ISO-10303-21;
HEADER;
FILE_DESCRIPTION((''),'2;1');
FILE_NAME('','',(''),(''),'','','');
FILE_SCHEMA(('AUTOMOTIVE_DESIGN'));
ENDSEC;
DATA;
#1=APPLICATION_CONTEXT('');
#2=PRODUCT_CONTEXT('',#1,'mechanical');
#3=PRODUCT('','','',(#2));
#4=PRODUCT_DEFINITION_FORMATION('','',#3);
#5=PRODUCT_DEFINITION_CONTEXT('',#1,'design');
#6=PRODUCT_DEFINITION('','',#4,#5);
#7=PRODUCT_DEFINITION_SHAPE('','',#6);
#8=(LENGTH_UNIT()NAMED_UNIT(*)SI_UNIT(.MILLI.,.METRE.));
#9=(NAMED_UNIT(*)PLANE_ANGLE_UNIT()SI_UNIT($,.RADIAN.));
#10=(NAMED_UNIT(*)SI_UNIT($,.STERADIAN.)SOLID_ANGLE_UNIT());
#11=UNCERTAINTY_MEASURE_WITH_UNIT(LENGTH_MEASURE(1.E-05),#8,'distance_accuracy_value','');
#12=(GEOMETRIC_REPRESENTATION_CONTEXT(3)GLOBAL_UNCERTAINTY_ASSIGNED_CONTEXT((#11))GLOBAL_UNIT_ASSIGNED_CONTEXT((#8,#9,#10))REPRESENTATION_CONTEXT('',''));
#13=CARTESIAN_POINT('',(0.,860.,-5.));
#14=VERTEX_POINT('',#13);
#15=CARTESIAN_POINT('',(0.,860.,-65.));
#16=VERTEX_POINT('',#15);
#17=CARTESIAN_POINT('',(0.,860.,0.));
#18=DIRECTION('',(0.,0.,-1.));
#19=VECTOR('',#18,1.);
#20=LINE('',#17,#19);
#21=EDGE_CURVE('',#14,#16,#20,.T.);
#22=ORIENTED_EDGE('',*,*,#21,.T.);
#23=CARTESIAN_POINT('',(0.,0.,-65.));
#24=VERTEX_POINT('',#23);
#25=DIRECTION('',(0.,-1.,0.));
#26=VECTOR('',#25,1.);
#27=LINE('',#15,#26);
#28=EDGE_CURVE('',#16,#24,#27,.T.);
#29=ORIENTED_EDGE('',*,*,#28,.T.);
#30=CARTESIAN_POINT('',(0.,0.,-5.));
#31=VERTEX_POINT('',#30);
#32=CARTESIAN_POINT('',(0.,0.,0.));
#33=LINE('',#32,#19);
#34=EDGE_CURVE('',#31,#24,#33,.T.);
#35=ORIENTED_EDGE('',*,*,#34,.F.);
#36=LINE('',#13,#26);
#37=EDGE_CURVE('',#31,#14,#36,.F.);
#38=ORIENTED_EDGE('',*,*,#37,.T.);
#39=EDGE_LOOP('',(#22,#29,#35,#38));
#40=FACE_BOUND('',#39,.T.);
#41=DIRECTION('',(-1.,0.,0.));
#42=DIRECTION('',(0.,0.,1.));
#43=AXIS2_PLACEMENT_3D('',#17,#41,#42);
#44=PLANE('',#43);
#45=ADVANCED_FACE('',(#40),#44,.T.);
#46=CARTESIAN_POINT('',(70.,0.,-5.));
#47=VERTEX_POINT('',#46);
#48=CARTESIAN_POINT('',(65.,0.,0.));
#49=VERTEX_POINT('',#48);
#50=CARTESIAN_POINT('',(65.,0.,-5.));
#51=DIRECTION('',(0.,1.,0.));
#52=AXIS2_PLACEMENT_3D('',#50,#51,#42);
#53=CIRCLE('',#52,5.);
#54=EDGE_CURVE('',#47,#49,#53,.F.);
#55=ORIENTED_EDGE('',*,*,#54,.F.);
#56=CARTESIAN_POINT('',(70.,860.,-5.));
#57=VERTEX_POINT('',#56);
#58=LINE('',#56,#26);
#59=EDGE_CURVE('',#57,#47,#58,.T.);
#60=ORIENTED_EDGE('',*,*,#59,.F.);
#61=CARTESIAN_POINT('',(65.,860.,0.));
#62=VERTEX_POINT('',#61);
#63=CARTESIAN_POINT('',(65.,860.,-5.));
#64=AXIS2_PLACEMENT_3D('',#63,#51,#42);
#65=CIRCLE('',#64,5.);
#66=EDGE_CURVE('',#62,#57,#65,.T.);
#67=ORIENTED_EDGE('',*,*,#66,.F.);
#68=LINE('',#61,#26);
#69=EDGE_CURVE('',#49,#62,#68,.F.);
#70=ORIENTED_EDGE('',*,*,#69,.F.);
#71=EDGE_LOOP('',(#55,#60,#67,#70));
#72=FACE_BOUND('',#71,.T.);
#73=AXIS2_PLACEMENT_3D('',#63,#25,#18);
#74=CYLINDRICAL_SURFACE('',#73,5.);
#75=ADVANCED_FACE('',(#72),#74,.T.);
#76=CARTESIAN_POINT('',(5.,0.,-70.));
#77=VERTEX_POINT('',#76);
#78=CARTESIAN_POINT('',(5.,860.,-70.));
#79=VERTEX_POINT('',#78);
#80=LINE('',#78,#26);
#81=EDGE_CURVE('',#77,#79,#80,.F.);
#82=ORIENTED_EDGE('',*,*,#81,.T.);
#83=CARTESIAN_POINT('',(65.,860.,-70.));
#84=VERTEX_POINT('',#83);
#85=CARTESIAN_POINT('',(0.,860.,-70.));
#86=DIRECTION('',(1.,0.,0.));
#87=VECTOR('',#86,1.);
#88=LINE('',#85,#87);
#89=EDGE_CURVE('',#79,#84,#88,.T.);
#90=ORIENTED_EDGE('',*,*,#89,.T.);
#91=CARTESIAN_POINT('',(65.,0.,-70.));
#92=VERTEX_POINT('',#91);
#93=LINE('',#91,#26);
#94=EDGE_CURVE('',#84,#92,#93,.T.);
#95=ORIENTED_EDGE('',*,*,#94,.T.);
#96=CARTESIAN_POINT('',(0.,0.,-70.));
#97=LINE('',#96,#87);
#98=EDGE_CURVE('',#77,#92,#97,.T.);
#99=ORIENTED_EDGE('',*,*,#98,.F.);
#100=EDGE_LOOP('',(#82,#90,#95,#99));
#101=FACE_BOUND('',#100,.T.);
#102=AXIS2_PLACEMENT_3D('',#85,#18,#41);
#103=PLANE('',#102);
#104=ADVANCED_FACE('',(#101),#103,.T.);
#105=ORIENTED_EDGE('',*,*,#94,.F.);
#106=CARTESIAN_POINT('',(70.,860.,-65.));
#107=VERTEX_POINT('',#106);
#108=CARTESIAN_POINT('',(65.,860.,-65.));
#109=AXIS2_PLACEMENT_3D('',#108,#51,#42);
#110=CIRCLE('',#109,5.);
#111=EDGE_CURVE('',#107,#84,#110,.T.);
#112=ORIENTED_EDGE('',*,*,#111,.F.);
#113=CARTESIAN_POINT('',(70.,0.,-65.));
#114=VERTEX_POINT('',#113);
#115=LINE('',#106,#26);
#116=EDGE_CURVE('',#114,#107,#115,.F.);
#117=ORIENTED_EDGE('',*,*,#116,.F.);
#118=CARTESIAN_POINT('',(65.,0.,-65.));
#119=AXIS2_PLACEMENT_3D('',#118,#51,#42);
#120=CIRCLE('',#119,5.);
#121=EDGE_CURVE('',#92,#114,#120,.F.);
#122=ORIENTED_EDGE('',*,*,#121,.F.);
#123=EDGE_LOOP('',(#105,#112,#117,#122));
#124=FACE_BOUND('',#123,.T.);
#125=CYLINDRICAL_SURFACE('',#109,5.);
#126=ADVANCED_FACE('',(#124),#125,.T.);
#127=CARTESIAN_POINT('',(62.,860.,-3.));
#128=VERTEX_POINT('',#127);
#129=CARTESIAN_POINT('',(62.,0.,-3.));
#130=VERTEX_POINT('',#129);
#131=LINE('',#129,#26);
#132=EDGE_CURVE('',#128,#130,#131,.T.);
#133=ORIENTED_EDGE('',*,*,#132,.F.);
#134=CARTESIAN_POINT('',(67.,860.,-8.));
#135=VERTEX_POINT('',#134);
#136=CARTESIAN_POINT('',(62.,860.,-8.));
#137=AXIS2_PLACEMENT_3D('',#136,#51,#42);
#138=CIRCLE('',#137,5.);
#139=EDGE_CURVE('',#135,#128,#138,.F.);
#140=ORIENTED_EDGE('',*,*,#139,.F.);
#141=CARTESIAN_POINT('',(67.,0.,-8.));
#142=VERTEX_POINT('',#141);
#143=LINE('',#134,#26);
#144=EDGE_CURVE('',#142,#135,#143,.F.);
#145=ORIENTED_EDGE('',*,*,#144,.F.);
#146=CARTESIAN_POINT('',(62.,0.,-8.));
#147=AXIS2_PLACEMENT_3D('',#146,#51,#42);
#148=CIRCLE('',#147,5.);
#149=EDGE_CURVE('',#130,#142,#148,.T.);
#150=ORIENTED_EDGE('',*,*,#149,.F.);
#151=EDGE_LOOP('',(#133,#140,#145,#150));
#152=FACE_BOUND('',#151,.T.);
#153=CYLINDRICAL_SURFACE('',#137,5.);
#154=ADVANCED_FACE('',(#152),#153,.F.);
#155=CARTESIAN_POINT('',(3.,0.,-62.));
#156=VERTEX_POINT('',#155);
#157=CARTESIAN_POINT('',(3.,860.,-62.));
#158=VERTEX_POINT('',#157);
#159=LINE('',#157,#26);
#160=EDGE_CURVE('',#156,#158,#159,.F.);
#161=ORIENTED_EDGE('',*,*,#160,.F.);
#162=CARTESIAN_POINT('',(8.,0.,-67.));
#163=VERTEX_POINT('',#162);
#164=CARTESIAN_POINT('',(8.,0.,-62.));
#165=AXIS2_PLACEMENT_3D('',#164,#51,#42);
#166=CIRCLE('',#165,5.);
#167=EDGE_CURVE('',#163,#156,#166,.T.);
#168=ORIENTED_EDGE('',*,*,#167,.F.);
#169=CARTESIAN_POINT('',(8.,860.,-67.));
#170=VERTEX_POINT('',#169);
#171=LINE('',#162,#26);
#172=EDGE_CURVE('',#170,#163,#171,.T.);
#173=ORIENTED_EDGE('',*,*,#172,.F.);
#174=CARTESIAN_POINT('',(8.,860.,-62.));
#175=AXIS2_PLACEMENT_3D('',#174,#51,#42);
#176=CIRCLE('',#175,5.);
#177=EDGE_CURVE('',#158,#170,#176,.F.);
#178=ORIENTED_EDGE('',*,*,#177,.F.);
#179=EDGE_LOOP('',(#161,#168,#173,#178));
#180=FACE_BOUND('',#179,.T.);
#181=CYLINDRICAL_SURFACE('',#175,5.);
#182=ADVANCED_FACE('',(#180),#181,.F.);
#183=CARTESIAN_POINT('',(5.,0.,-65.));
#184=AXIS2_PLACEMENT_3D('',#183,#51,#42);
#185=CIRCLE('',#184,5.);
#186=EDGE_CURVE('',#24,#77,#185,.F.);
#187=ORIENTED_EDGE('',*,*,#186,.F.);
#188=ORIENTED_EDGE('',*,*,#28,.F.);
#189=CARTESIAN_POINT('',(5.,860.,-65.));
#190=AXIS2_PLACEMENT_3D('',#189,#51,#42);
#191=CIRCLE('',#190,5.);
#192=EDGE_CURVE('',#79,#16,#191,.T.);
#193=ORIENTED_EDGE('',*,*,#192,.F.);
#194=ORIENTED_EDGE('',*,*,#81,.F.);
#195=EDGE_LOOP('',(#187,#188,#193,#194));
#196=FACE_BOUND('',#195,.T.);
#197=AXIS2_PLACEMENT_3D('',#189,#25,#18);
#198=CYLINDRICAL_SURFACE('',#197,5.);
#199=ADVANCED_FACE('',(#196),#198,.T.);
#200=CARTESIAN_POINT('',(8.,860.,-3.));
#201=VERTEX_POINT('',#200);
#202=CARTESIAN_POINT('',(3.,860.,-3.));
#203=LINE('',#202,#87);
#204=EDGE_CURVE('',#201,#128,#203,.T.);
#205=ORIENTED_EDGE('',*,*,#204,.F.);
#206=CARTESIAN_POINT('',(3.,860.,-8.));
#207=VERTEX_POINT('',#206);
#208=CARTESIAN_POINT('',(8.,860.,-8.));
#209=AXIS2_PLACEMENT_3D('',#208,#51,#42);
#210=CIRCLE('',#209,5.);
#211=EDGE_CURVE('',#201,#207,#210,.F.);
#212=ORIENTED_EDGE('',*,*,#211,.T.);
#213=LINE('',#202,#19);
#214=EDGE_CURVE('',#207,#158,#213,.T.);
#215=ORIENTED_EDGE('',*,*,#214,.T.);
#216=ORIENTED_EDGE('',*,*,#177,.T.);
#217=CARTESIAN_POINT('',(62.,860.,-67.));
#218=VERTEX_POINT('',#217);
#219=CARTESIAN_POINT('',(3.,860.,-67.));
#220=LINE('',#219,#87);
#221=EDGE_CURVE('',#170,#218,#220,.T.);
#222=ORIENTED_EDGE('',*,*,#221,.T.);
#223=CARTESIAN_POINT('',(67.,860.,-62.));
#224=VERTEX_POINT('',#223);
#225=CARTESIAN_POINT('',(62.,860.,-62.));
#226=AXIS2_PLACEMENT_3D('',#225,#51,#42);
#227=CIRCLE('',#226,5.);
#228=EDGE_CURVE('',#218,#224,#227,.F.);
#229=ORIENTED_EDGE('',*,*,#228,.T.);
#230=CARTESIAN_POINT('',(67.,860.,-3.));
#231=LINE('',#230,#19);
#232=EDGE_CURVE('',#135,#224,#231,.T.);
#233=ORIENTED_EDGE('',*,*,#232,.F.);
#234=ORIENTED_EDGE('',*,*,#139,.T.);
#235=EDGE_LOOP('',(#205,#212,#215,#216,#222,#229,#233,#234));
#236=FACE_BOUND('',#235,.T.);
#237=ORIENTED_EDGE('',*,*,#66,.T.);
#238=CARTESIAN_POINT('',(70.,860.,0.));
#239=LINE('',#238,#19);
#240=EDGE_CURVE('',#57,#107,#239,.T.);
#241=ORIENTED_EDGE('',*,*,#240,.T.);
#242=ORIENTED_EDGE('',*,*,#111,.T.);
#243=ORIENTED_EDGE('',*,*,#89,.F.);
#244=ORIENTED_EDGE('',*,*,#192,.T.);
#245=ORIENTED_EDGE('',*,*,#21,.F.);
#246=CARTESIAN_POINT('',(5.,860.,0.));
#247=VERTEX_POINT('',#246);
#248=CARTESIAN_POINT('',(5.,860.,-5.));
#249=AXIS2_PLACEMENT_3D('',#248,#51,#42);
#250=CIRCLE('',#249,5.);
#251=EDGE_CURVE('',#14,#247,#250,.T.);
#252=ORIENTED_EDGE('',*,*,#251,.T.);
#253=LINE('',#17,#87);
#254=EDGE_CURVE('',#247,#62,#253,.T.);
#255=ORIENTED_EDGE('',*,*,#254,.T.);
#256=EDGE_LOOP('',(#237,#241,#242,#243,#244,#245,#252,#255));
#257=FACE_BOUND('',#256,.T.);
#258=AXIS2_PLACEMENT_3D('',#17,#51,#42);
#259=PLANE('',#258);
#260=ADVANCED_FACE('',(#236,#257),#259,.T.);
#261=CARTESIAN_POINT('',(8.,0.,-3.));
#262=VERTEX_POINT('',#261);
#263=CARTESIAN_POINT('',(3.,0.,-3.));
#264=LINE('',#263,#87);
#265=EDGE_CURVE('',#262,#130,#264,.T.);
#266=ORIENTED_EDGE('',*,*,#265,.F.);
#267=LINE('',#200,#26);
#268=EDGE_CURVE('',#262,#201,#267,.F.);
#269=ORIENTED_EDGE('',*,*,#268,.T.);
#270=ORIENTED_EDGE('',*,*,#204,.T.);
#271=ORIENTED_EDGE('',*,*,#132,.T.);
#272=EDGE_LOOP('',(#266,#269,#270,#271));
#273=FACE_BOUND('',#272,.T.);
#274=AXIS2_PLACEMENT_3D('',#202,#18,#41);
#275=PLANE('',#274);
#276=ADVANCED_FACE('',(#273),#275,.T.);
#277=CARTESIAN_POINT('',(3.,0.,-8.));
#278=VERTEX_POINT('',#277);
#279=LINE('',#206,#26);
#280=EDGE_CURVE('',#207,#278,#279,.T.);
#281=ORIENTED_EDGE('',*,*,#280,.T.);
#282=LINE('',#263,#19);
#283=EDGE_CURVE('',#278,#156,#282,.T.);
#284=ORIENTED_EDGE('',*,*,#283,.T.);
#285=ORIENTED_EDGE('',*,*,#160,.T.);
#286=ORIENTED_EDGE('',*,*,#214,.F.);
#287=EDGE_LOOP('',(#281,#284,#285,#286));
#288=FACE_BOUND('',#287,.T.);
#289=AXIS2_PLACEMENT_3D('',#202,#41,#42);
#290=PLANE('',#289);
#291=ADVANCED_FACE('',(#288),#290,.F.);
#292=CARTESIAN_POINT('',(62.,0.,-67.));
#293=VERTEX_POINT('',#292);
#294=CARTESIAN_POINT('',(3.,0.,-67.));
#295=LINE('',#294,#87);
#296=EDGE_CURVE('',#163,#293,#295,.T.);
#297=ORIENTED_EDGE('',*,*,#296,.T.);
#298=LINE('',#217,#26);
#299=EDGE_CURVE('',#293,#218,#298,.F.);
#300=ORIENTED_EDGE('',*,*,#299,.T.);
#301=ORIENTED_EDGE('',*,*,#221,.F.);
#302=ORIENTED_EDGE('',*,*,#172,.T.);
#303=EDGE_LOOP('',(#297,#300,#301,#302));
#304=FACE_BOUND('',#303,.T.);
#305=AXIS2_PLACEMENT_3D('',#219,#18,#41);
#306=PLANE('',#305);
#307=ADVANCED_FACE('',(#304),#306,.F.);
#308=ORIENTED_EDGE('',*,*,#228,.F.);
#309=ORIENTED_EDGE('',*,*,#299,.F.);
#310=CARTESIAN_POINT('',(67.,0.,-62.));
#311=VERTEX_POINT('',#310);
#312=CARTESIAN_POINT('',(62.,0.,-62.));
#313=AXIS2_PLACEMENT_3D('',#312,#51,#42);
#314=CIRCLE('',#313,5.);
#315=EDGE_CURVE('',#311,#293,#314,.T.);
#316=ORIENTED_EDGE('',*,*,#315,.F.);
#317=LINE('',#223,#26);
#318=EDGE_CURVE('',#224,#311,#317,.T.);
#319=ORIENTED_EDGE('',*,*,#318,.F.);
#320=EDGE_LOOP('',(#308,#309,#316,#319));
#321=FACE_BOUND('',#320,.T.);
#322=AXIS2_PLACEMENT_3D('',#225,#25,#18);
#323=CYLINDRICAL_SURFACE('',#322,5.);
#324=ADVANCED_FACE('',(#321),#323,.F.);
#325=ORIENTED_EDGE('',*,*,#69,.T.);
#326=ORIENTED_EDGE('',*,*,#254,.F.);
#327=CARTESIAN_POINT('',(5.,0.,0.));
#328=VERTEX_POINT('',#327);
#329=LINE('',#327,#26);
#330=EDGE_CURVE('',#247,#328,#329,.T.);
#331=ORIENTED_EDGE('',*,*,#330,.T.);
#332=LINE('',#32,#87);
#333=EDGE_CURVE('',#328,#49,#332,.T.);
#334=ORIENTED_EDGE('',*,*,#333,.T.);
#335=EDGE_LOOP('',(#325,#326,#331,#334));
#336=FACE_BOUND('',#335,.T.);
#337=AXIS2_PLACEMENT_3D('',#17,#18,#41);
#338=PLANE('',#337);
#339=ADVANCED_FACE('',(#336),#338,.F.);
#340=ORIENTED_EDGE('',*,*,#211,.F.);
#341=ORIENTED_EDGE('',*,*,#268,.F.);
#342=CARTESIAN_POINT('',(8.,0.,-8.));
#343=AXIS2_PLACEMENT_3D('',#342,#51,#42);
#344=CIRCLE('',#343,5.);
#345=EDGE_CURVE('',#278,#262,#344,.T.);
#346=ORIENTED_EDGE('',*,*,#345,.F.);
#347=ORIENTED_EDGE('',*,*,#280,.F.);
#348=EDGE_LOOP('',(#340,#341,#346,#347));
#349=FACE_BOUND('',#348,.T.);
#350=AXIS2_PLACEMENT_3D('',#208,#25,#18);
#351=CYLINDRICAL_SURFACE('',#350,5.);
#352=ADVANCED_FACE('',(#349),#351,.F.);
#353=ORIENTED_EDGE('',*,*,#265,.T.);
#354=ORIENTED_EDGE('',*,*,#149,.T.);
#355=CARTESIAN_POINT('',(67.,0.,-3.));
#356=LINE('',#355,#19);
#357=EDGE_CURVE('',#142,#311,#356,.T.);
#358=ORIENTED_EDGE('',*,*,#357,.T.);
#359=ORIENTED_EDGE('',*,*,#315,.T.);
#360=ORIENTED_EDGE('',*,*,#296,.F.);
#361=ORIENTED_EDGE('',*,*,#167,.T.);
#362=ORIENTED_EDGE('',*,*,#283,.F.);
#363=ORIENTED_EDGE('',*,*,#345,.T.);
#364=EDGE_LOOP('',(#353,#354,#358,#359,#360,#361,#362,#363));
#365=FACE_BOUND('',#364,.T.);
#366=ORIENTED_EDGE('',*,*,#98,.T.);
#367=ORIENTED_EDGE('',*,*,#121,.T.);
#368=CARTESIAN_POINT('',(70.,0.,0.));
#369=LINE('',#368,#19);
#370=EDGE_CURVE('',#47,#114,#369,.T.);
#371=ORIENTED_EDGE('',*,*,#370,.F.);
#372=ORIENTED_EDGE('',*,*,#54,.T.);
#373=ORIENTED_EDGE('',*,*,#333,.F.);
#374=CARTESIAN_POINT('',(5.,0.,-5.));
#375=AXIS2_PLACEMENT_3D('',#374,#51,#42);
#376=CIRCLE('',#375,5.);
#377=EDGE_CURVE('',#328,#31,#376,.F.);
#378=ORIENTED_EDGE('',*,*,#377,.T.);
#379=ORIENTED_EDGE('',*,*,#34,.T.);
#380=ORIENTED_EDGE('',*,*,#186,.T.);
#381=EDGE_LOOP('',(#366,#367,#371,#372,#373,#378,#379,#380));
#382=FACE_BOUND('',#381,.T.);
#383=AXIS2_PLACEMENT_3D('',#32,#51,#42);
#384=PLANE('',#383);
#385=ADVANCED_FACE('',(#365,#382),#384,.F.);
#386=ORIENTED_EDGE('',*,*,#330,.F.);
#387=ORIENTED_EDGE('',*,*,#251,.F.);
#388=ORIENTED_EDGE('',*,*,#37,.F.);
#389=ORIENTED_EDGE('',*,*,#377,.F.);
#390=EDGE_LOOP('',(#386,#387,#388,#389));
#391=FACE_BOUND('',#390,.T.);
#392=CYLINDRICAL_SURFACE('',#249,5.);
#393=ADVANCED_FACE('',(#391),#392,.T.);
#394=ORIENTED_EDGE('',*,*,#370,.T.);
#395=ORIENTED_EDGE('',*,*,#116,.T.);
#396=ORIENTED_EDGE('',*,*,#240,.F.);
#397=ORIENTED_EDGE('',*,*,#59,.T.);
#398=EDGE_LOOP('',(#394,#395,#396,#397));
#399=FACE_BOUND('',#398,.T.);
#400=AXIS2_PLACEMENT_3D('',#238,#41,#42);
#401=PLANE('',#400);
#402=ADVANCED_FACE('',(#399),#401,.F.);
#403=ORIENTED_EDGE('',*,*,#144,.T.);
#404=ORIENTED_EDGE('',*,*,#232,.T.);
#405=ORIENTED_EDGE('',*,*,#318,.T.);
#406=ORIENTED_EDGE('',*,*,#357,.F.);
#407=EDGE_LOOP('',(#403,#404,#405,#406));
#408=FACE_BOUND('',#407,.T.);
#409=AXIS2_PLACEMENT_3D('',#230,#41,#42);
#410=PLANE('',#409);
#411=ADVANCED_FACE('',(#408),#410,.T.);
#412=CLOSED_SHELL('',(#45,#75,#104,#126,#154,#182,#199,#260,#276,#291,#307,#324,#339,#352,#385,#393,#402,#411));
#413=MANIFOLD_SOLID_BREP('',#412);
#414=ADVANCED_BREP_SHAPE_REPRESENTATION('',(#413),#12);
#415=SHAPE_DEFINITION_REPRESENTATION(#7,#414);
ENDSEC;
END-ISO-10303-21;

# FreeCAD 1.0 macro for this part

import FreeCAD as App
import Part
import Sketcher
from FreeCAD import Vector
Q = App.Units.Quantity


def edges_at(feature, points):
    """Names of the edges that pass closest to the given points."""
    edges = feature.Shape.Edges
    near = lambda p: min(range(len(edges)), key=lambda i: edges[i].distToShape(Part.Vertex(*p))[0])
    return sorted({f"Edge{near(p) + 1}" for p in points})


def add_polygon(sketch, points):
    """Adds a closed chain of lines whose ends are joined by coincident constraints."""
    first, n = sketch.GeometryCount, len(points)
    for a, b in zip(points, points[1:] + points[:1]):
        sketch.addGeometry(Part.LineSegment(App.Vector(*a, 0), App.Vector(*b, 0)), False)
    for i in range(n):
        sketch.addConstraint(Sketcher.Constraint("Coincident", first + i, 2, first + (i + 1) % n, 1))

doc = App.newDocument("Part")
body = doc.addObject("PartDesign::Body", "Body")

# Sketch on XZ plane
sketch1 = body.newObject("Sketcher::SketchObject", "Sketch")
sketch1.AttachmentSupport = (doc.getObject("XZ_Plane"), [""])
sketch1.MapMode = "FlatFace"
add_polygon(sketch1, [(0, -70), (0, 0), (70, 0), (70, -70)])  # lines 0-3
add_polygon(sketch1, [(67, -3), (3, -3), (3, -67), (67, -67)])  # lines 4-7
sketch1.addConstraint([
    Sketcher.Constraint("Vertical", 0),
    Sketcher.Constraint("Horizontal", 1),
    Sketcher.Constraint("Vertical", 2),
    Sketcher.Constraint("Horizontal", 3),
    Sketcher.Constraint("Horizontal", 4),
    Sketcher.Constraint("Vertical", 5),
    Sketcher.Constraint("Horizontal", 6),
    Sketcher.Constraint("Vertical", 7),
    Sketcher.Constraint("Coincident", 0, 2, -1, 1),
    Sketcher.Constraint("Equal", 3, 0),
    Sketcher.Constraint("Equal", 6, 5),
    Sketcher.Constraint("DistanceX", 1, 1, 1, 2, Q("70 mm")),
    Sketcher.Constraint("DistanceX", 4, 2, 4, 1, Q("64 mm")),
    Sketcher.Constraint("DistanceX", -1, 1, 4, 2, Q("3 mm")),
    Sketcher.Constraint("DistanceY", 4, 2, -1, 1, Q("3 mm")),
])
pad1 = body.newObject("PartDesign::Pad", "Pad")
pad1.Profile = sketch1
pad1.Length = 860
pad1.Reversed = True
doc.recompute()

fillet = body.newObject("PartDesign::Fillet", "Fillet")
fillet.Base = (pad1, edges_at(pad1, [
    (3, 430, -67),
    (3, 430, -3),
    (67, 430, -3),
    (67, 430, -67),
    (0, 430, 0),
    (0, 430, -70),
    (70, 430, -70),
    (70, 430, 0),
]))
fillet.Radius = 5

doc.recompute()
